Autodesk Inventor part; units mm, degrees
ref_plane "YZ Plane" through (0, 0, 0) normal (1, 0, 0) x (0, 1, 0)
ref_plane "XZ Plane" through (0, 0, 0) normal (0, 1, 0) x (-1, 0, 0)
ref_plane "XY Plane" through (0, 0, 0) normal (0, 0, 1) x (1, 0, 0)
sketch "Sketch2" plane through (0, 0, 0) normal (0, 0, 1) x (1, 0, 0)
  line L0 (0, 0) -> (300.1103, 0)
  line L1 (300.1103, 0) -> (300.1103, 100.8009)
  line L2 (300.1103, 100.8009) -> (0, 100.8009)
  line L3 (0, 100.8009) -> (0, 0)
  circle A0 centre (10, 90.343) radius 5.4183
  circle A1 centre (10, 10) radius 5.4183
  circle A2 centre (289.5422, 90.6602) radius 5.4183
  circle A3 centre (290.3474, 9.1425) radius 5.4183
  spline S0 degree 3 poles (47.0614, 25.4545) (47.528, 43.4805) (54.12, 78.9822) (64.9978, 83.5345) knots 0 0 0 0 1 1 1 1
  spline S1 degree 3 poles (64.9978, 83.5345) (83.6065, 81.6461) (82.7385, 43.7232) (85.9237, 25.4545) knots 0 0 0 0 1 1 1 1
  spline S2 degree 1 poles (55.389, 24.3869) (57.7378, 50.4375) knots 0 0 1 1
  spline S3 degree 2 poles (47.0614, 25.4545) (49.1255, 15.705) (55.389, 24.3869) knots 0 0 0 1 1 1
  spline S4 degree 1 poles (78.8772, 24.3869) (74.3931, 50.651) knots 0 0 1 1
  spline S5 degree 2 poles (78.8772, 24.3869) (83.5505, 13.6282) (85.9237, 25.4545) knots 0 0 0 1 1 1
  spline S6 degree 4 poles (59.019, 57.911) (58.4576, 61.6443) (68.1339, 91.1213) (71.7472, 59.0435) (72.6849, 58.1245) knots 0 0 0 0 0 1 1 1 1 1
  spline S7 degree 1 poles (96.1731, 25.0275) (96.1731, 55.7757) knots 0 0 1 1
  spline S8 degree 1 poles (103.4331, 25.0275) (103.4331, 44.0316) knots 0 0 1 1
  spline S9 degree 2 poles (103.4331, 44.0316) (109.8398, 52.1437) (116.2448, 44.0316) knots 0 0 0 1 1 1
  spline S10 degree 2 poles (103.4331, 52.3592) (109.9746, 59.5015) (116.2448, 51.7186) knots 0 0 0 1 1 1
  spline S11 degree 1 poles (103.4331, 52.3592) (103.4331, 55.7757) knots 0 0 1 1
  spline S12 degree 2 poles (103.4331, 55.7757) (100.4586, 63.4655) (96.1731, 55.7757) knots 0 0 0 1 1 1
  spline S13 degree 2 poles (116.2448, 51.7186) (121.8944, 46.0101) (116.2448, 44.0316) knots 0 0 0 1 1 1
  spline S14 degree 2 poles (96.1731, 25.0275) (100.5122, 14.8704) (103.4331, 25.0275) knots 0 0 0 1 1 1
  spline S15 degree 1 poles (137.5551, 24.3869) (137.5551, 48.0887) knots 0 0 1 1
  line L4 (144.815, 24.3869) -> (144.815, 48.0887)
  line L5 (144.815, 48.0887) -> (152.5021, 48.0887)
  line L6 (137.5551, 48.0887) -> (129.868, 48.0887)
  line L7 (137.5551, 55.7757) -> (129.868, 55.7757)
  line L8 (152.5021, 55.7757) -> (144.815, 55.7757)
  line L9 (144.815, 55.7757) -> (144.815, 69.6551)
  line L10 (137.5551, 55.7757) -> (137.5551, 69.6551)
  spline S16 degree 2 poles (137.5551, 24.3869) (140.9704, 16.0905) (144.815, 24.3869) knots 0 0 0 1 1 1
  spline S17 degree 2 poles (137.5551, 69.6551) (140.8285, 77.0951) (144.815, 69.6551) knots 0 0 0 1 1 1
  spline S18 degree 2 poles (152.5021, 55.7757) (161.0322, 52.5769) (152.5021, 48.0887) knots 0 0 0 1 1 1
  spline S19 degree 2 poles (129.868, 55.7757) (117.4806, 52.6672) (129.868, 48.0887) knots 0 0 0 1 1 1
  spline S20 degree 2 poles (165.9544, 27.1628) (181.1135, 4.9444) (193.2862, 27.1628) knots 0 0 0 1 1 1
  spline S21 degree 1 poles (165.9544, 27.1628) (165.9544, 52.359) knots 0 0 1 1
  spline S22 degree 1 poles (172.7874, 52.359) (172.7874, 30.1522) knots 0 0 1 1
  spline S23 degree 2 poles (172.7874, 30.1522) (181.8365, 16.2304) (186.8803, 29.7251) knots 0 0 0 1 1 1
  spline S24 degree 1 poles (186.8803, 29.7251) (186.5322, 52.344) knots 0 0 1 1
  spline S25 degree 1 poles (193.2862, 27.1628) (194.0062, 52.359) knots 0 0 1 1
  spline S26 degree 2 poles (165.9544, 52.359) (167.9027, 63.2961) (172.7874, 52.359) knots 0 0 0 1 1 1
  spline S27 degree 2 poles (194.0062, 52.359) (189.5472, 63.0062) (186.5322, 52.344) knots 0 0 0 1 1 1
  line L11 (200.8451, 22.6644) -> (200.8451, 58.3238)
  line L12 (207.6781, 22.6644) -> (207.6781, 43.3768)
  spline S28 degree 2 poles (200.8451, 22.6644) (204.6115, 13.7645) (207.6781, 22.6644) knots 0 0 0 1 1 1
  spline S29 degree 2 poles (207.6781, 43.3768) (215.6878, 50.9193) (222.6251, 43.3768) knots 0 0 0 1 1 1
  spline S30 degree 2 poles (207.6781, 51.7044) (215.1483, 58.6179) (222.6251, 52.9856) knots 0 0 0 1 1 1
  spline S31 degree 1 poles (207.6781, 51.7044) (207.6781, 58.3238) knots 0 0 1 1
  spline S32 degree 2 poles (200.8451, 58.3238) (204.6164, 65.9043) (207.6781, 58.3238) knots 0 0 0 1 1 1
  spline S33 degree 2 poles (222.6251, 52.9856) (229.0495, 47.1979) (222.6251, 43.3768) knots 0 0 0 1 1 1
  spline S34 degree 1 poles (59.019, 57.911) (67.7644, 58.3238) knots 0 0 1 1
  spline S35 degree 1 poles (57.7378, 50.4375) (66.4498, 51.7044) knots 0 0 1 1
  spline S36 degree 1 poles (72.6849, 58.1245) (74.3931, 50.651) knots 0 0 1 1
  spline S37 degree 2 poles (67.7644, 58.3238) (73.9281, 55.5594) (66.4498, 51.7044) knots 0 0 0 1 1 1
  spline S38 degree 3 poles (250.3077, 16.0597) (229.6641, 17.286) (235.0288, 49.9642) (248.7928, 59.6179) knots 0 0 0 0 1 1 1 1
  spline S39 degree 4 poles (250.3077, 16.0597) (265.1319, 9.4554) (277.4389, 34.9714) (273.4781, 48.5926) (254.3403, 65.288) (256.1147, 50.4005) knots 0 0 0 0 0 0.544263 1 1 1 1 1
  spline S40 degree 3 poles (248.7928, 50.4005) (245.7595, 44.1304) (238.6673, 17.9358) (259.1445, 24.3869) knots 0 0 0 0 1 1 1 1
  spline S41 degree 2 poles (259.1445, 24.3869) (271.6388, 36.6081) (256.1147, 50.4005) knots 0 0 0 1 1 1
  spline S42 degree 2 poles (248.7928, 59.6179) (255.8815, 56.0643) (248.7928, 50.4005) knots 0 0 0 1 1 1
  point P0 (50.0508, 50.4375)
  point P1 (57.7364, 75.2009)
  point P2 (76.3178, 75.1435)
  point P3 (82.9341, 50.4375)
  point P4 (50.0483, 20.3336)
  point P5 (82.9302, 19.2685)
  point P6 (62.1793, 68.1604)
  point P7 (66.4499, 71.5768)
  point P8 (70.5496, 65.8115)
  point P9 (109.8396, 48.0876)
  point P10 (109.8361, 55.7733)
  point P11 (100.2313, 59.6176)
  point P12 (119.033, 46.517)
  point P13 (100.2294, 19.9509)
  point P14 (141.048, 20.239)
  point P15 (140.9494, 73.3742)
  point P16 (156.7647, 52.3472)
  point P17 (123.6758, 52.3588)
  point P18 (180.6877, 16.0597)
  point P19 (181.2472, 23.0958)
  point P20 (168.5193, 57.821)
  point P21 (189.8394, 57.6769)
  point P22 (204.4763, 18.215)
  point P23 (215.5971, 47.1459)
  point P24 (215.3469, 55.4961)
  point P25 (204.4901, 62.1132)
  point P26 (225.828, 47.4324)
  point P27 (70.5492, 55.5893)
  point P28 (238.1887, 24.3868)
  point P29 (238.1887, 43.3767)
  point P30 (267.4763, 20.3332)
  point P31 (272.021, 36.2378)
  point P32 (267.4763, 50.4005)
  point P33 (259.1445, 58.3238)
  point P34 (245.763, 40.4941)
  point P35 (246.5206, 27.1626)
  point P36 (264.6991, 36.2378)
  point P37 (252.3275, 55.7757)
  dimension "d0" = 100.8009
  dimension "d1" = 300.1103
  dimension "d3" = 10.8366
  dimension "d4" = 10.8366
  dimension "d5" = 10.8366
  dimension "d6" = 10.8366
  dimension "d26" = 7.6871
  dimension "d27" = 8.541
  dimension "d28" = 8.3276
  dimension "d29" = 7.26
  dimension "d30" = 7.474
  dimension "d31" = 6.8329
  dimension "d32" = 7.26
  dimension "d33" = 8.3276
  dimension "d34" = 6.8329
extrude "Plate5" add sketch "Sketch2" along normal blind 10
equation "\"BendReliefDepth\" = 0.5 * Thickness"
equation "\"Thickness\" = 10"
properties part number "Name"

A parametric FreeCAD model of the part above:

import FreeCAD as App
import Part
import Sketcher

V = App.Vector


def add_polygon(sketch, points):
    """Adds a closed chain of lines whose ends are joined by coincident constraints."""
    first, n = sketch.GeometryCount, len(points)
    for a, b in zip(points, points[1:] + points[:1]):
        sketch.addGeometry(Part.LineSegment(App.Vector(*a, 0), App.Vector(*b, 0)), False)
    for i in range(n):
        sketch.addConstraint(Sketcher.Constraint("Coincident", first + i, 2, first + (i + 1) % n, 1))

doc = App.newDocument("Part")
params = doc.addObject("Spreadsheet::Sheet", "Params")
for row, (alias, value) in enumerate([
    ("pad1_length", "10 mm"),
], start=1):
    params.set(f"A{row}", alias)
    params.set(f"B{row}", "=" + value)
    params.setAlias(f"B{row}", alias)

body = doc.addObject("PartDesign::Body", "Body")

sketch1 = doc.addObject("Sketcher::SketchObject", "Sketch")
body.addObject(sketch1)
sketch1.AttachmentSupport = (doc.XY_Plane, [""])
sketch1.MapMode = "FlatFace"
add_polygon(sketch1, [(0, 100.8009), (0, 0), (300.1103, 0), (300.1103, 100.8009)])
sketch1.addGeometry(Part.Circle(V(10, 10, 0), V(0, 0, 1), 5.4183), False)
sketch1.addGeometry(Part.BSplineCurve([V(96.1731, 25.0275, 0), V(100.5122, 14.8704, 0), V(103.4331, 25.0275, 0)], [3, 3], [0, 1], False, 2, [1, 1, 1], False), False)
sketch1.addGeometry(Part.BSplineCurve([V(96.1731, 25.0275, 0), V(96.1731, 55.7757, 0)], [2, 2], [0, 1], False, 1, [1, 1], False), False)
sketch1.addGeometry(Part.BSplineCurve([V(103.4331, 55.7757, 0), V(100.4586, 63.4655, 0), V(96.1731, 55.7757, 0)], [3, 3], [0, 1], False, 2, [1, 1, 1], False), False)
sketch1.addGeometry(Part.BSplineCurve([V(103.4331, 52.3592, 0), V(103.4331, 55.7757, 0)], [2, 2], [0, 1], False, 1, [1, 1], False), False)
sketch1.addGeometry(Part.BSplineCurve([V(103.4331, 52.3592, 0), V(109.9746, 59.5015, 0), V(116.2448, 51.7186, 0)], [3, 3], [0, 1], False, 2, [1, 1, 1], False), False)
sketch1.addGeometry(Part.BSplineCurve([V(116.2448, 51.7186, 0), V(121.8944, 46.0101, 0), V(116.2448, 44.0316, 0)], [3, 3], [0, 1], False, 2, [1, 1, 1], False), False)
sketch1.addGeometry(Part.BSplineCurve([V(103.4331, 44.0316, 0), V(109.8398, 52.1437, 0), V(116.2448, 44.0316, 0)], [3, 3], [0, 1], False, 2, [1, 1, 1], False), False)
sketch1.addGeometry(Part.BSplineCurve([V(103.4331, 25.0275, 0), V(103.4331, 44.0316, 0)], [2, 2], [0, 1], False, 1, [1, 1], False), False)
sketch1.addGeometry(Part.BSplineCurve([V(137.5551, 24.3869, 0), V(140.9704, 16.0905, 0), V(144.815, 24.3869, 0)], [3, 3], [0, 1], False, 2, [1, 1, 1], False), False)
sketch1.addGeometry(Part.BSplineCurve([V(137.5551, 24.3869, 0), V(137.5551, 48.0887, 0)], [2, 2], [0, 1], False, 1, [1, 1], False), False)
sketch1.addGeometry(Part.LineSegment(V(137.5551, 48.0887, 0), V(129.868, 48.0887, 0)), False)
sketch1.addGeometry(Part.BSplineCurve([V(129.868, 55.7757, 0), V(117.4806, 52.6672, 0), V(129.868, 48.0887, 0)], [3, 3], [0, 1], False, 2, [1, 1, 1], False), False)
sketch1.addGeometry(Part.LineSegment(V(129.868, 55.7757, 0), V(137.5551, 55.7757, 0)), False)
sketch1.addGeometry(Part.LineSegment(V(137.5551, 55.7757, 0), V(137.5551, 69.6551, 0)), False)
sketch1.addGeometry(Part.BSplineCurve([V(137.5551, 69.6551, 0), V(140.8285, 77.0951, 0), V(144.815, 69.6551, 0)], [3, 3], [0, 1], False, 2, [1, 1, 1], False), False)
sketch1.addGeometry(Part.LineSegment(V(144.815, 69.6551, 0), V(144.815, 55.7757, 0)), False)
sketch1.addGeometry(Part.LineSegment(V(144.815, 55.7757, 0), V(152.5021, 55.7757, 0)), False)
sketch1.addGeometry(Part.BSplineCurve([V(152.5021, 55.7757, 0), V(161.0322, 52.5769, 0), V(152.5021, 48.0887, 0)], [3, 3], [0, 1], False, 2, [1, 1, 1], False), False)
sketch1.addGeometry(Part.LineSegment(V(152.5021, 48.0887, 0), V(144.815, 48.0887, 0)), False)
sketch1.addGeometry(Part.LineSegment(V(144.815, 48.0887, 0), V(144.815, 24.3869, 0)), False)
sketch1.addGeometry(Part.Circle(V(290.3474, 9.1425, 0), V(0, 0, 1), 5.4183), False)
sketch1.addGeometry(Part.BSplineCurve([V(165.9544, 27.1628, 0), V(181.1135, 4.9444, 0), V(193.2862, 27.1628, 0)], [3, 3], [0, 1], False, 2, [1, 1, 1], False), False)
sketch1.addGeometry(Part.BSplineCurve([V(165.9544, 27.1628, 0), V(165.9544, 52.359, 0)], [2, 2], [0, 1], False, 1, [1, 1], False), False)
sketch1.addGeometry(Part.BSplineCurve([V(165.9544, 52.359, 0), V(167.9027, 63.2961, 0), V(172.7874, 52.359, 0)], [3, 3], [0, 1], False, 2, [1, 1, 1], False), False)
sketch1.addGeometry(Part.BSplineCurve([V(172.7874, 52.359, 0), V(172.7874, 30.1522, 0)], [2, 2], [0, 1], False, 1, [1, 1], False), False)
sketch1.addGeometry(Part.BSplineCurve([V(172.7874, 30.1522, 0), V(181.8365, 16.2304, 0), V(186.8803, 29.7251, 0)], [3, 3], [0, 1], False, 2, [1, 1, 1], False), False)
sketch1.addGeometry(Part.BSplineCurve([V(186.8803, 29.7251, 0), V(186.5322, 52.344, 0)], [2, 2], [0, 1], False, 1, [1, 1], False), False)
sketch1.addGeometry(Part.BSplineCurve([V(194.0062, 52.359, 0), V(189.5472, 63.0062, 0), V(186.5322, 52.344, 0)], [3, 3], [0, 1], False, 2, [1, 1, 1], False), False)
sketch1.addGeometry(Part.BSplineCurve([V(193.2862, 27.1628, 0), V(194.0062, 52.359, 0)], [2, 2], [0, 1], False, 1, [1, 1], False), False)
sketch1.addGeometry(Part.BSplineCurve([V(200.8451, 22.6644, 0), V(204.6115, 13.7645, 0), V(207.6781, 22.6644, 0)], [3, 3], [0, 1], False, 2, [1, 1, 1], False), False)
sketch1.addGeometry(Part.LineSegment(V(200.8451, 22.6644, 0), V(200.8451, 58.3238, 0)), False)
sketch1.addGeometry(Part.BSplineCurve([V(200.8451, 58.3238, 0), V(204.6164, 65.9043, 0), V(207.6781, 58.3238, 0)], [3, 3], [0, 1], False, 2, [1, 1, 1], False), False)
sketch1.addGeometry(Part.BSplineCurve([V(207.6781, 51.7044, 0), V(207.6781, 58.3238, 0)], [2, 2], [0, 1], False, 1, [1, 1], False), False)
sketch1.addGeometry(Part.BSplineCurve([V(207.6781, 51.7044, 0), V(215.1483, 58.6179, 0), V(222.6251, 52.9856, 0)], [3, 3], [0, 1], False, 2, [1, 1, 1], False), False)
sketch1.addGeometry(Part.BSplineCurve([V(222.6251, 52.9856, 0), V(229.0495, 47.1979, 0), V(222.6251, 43.3768, 0)], [3, 3], [0, 1], False, 2, [1, 1, 1], False), False)
sketch1.addGeometry(Part.BSplineCurve([V(207.6781, 43.3768, 0), V(215.6878, 50.9193, 0), V(222.6251, 43.3768, 0)], [3, 3], [0, 1], False, 2, [1, 1, 1], False), False)
sketch1.addGeometry(Part.LineSegment(V(207.6781, 43.3768, 0), V(207.6781, 22.6644, 0)), False)
sketch1.addGeometry(Part.BSplineCurve([V(250.3077, 16.0597, 0), V(265.1319, 9.4554, 0), V(277.4389, 34.9714, 0), V(273.4781, 48.5926, 0), V(254.3403, 65.288, 0), V(256.1147, 50.4005, 0)], [5, 1, 5], [0, 0.544263, 1], False, 4, [1, 1, 1, 1, 1, 1], False), False)
sketch1.addGeometry(Part.BSplineCurve([V(250.3077, 16.0597, 0), V(229.6641, 17.286, 0), V(235.0288, 49.9642, 0), V(248.7928, 59.6179, 0)], [4, 4], [0, 1], False, 3, [1, 1, 1, 1], False), False)
sketch1.addGeometry(Part.BSplineCurve([V(248.7928, 59.6179, 0), V(255.8815, 56.0643, 0), V(248.7928, 50.4005, 0)], [3, 3], [0, 1], False, 2, [1, 1, 1], False), False)
sketch1.addGeometry(Part.BSplineCurve([V(248.7928, 50.4005, 0), V(245.7595, 44.1304, 0), V(238.6673, 17.9358, 0), V(259.1445, 24.3869, 0)], [4, 4], [0, 1], False, 3, [1, 1, 1, 1], False), False)
sketch1.addGeometry(Part.BSplineCurve([V(259.1445, 24.3869, 0), V(271.6388, 36.6081, 0), V(256.1147, 50.4005, 0)], [3, 3], [0, 1], False, 2, [1, 1, 1], False), False)
sketch1.addGeometry(Part.BSplineCurve([V(47.0614, 25.4545, 0), V(49.1255, 15.705, 0), V(55.389, 24.3869, 0)], [3, 3], [0, 1], False, 2, [1, 1, 1], False), False)
sketch1.addGeometry(Part.BSplineCurve([V(47.0614, 25.4545, 0), V(47.528, 43.4805, 0), V(54.12, 78.9822, 0), V(64.9978, 83.5345, 0)], [4, 4], [0, 1], False, 3, [1, 1, 1, 1], False), False)
sketch1.addGeometry(Part.BSplineCurve([V(64.9978, 83.5345, 0), V(83.6065, 81.6461, 0), V(82.7385, 43.7232, 0), V(85.9237, 25.4545, 0)], [4, 4], [0, 1], False, 3, [1, 1, 1, 1], False), False)
sketch1.addGeometry(Part.BSplineCurve([V(78.8772, 24.3869, 0), V(83.5505, 13.6282, 0), V(85.9237, 25.4545, 0)], [3, 3], [0, 1], False, 2, [1, 1, 1], False), False)
sketch1.addGeometry(Part.BSplineCurve([V(78.8772, 24.3869, 0), V(74.3931, 50.651, 0)], [2, 2], [0, 1], False, 1, [1, 1], False), False)
sketch1.addGeometry(Part.BSplineCurve([V(72.6849, 58.1245, 0), V(74.3931, 50.651, 0)], [2, 2], [0, 1], False, 1, [1, 1], False), False)
sketch1.addGeometry(Part.BSplineCurve([V(59.019, 57.911, 0), V(58.4576, 61.6443, 0), V(68.1339, 91.1213, 0), V(71.7472, 59.0435, 0), V(72.6849, 58.1245, 0)], [5, 5], [0, 1], False, 4, [1, 1, 1, 1, 1], False), False)
sketch1.addGeometry(Part.BSplineCurve([V(59.019, 57.911, 0), V(67.7644, 58.3238, 0)], [2, 2], [0, 1], False, 1, [1, 1], False), False)
sketch1.addGeometry(Part.BSplineCurve([V(67.7644, 58.3238, 0), V(73.9281, 55.5594, 0), V(66.4498, 51.7044, 0)], [3, 3], [0, 1], False, 2, [1, 1, 1], False), False)
sketch1.addGeometry(Part.BSplineCurve([V(57.7378, 50.4375, 0), V(66.4498, 51.7044, 0)], [2, 2], [0, 1], False, 1, [1, 1], False), False)
sketch1.addGeometry(Part.BSplineCurve([V(55.389, 24.3869, 0), V(57.7378, 50.4375, 0)], [2, 2], [0, 1], False, 1, [1, 1], False), False)
sketch1.addGeometry(Part.Circle(V(10, 90.343, 0), V(0, 0, 1), 5.4183), False)
sketch1.addGeometry(Part.Circle(V(289.5422, 90.6602, 0), V(0, 0, 1), 5.4183), False)
sketch1.addConstraint(Sketcher.Constraint("Block", 5))
sketch1.addConstraint(Sketcher.Constraint("Block", 6))
sketch1.addConstraint(Sketcher.Constraint("Block", 7))
sketch1.addConstraint(Sketcher.Constraint("Block", 8))
sketch1.addConstraint(Sketcher.Constraint("Block", 9))
sketch1.addConstraint(Sketcher.Constraint("Block", 10))
sketch1.addConstraint(Sketcher.Constraint("Block", 11))
sketch1.addConstraint(Sketcher.Constraint("Block", 12))
sketch1.addConstraint(Sketcher.Constraint("Block", 13))
sketch1.addConstraint(Sketcher.Constraint("Block", 14))
sketch1.addConstraint(Sketcher.Constraint("Block", 16))
sketch1.addConstraint(Sketcher.Constraint("Block", 19))
sketch1.addConstraint(Sketcher.Constraint("Block", 22))
sketch1.addConstraint(Sketcher.Constraint("Block", 26))
sketch1.addConstraint(Sketcher.Constraint("Block", 27))
sketch1.addConstraint(Sketcher.Constraint("Block", 28))
sketch1.addConstraint(Sketcher.Constraint("Block", 29))
sketch1.addConstraint(Sketcher.Constraint("Block", 30))
sketch1.addConstraint(Sketcher.Constraint("Block", 31))
sketch1.addConstraint(Sketcher.Constraint("Block", 32))
sketch1.addConstraint(Sketcher.Constraint("Block", 33))
sketch1.addConstraint(Sketcher.Constraint("Block", 34))
sketch1.addConstraint(Sketcher.Constraint("Block", 36))
sketch1.addConstraint(Sketcher.Constraint("Block", 37))
sketch1.addConstraint(Sketcher.Constraint("Block", 38))
sketch1.addConstraint(Sketcher.Constraint("Block", 39))
sketch1.addConstraint(Sketcher.Constraint("Block", 40))
sketch1.addConstraint(Sketcher.Constraint("Block", 42))
sketch1.addConstraint(Sketcher.Constraint("Block", 43))
sketch1.addConstraint(Sketcher.Constraint("Block", 44))
sketch1.addConstraint(Sketcher.Constraint("Block", 45))
sketch1.addConstraint(Sketcher.Constraint("Block", 46))
sketch1.addConstraint(Sketcher.Constraint("Block", 47))
sketch1.addConstraint(Sketcher.Constraint("Block", 48))
sketch1.addConstraint(Sketcher.Constraint("Block", 49))
sketch1.addConstraint(Sketcher.Constraint("Block", 50))
sketch1.addConstraint(Sketcher.Constraint("Block", 51))
sketch1.addConstraint(Sketcher.Constraint("Block", 52))
sketch1.addConstraint(Sketcher.Constraint("Block", 53))
sketch1.addConstraint(Sketcher.Constraint("Block", 54))
sketch1.addConstraint(Sketcher.Constraint("Block", 55))
sketch1.addConstraint(Sketcher.Constraint("Block", 56))
sketch1.addConstraint(Sketcher.Constraint("Block", 57))
sketch1.addConstraint(Sketcher.Constraint("Coincident", 14, 2, 15, 1))
sketch1.addConstraint(Sketcher.Constraint("Coincident", 15, 2, 16, 2))
sketch1.addConstraint(Sketcher.Constraint("Coincident", 16, 1, 17, 1))
sketch1.addConstraint(Sketcher.Constraint("Coincident", 17, 2, 18, 1))
sketch1.addConstraint(Sketcher.Constraint("Coincident", 18, 2, 19, 1))
sketch1.addConstraint(Sketcher.Constraint("Coincident", 19, 2, 20, 1))
sketch1.addConstraint(Sketcher.Constraint("Coincident", 20, 2, 21, 1))
sketch1.addConstraint(Sketcher.Constraint("Coincident", 21, 2, 22, 1))
sketch1.addConstraint(Sketcher.Constraint("Coincident", 22, 2, 23, 1))
sketch1.addConstraint(Sketcher.Constraint("Coincident", 23, 2, 24, 1))
sketch1.addConstraint(Sketcher.Constraint("Coincident", 24, 2, 13, 2))
sketch1.addConstraint(Sketcher.Constraint("Coincident", 34, 1, 35, 1))
sketch1.addConstraint(Sketcher.Constraint("Coincident", 35, 2, 36, 1))
sketch1.addConstraint(Sketcher.Constraint("Coincident", 40, 1, 41, 1))
sketch1.addConstraint(Sketcher.Constraint("Coincident", 41, 2, 34, 2))
sketch1.addConstraint(Sketcher.Constraint("Vertical", 0))
sketch1.addConstraint(Sketcher.Constraint("Horizontal", 1))
sketch1.addConstraint(Sketcher.Constraint("Vertical", 2))
sketch1.addConstraint(Sketcher.Constraint("Horizontal", 3))
sketch1.addConstraint(Sketcher.Constraint("Horizontal", 17))
sketch1.addConstraint(Sketcher.Constraint("Vertical", 18))
sketch1.addConstraint(Sketcher.Constraint("Vertical", 20))
sketch1.addConstraint(Sketcher.Constraint("Horizontal", 21))
sketch1.addConstraint(Sketcher.Constraint("Horizontal", 23))
sketch1.addConstraint(Sketcher.Constraint("Vertical", 24))
sketch1.addConstraint(Sketcher.Constraint("Coincident", 0, 2, -1, 1))
sketch1.addConstraint(Sketcher.Constraint("Equal", 4, 25))
sketch1.addConstraint(Sketcher.Constraint("Equal", 25, 58))
sketch1.addConstraint(Sketcher.Constraint("Equal", 58, 59))
sketch1.addConstraint(Sketcher.Constraint("Vertical", 4, 3, 58, 3))
sketch1.addConstraint(Sketcher.Constraint("Diameter", 4, 10.8366))
sketch1.addConstraint(Sketcher.Constraint("DistanceY", 0, 2, 0, 1, 100.801))
sketch1.addConstraint(Sketcher.Constraint("DistanceX", 1, 1, 1, 2, 300.1103))
sketch1.addConstraint(Sketcher.Constraint("DistanceX", -1, 1, 4, 3, 10.0))
sketch1.addConstraint(Sketcher.Constraint("DistanceY", -1, 1, 4, 3, 10.0))
sketch1.addConstraint(Sketcher.Constraint("DistanceX", 21, 2, 59, 3, 137.04))
sketch1.addConstraint(Sketcher.Constraint("DistanceY", -1, 1, 58, 3, 90.343))
sketch1.addConstraint(Sketcher.Constraint("DistanceX", 25, 3, 1, 2, 9.763))
sketch1.addConstraint(Sketcher.Constraint("DistanceY", -1, 1, 25, 3, 9.1425))
sketch1.addConstraint(Sketcher.Constraint("DistanceY", -1, 1, 59, 3, 90.6602))
pad1 = doc.addObject("PartDesign::Pad", "Pad")
body.addObject(pad1)
pad1.Profile = sketch1
pad1.setExpression("Length", "Params.pad1_length")

doc.recompute()
